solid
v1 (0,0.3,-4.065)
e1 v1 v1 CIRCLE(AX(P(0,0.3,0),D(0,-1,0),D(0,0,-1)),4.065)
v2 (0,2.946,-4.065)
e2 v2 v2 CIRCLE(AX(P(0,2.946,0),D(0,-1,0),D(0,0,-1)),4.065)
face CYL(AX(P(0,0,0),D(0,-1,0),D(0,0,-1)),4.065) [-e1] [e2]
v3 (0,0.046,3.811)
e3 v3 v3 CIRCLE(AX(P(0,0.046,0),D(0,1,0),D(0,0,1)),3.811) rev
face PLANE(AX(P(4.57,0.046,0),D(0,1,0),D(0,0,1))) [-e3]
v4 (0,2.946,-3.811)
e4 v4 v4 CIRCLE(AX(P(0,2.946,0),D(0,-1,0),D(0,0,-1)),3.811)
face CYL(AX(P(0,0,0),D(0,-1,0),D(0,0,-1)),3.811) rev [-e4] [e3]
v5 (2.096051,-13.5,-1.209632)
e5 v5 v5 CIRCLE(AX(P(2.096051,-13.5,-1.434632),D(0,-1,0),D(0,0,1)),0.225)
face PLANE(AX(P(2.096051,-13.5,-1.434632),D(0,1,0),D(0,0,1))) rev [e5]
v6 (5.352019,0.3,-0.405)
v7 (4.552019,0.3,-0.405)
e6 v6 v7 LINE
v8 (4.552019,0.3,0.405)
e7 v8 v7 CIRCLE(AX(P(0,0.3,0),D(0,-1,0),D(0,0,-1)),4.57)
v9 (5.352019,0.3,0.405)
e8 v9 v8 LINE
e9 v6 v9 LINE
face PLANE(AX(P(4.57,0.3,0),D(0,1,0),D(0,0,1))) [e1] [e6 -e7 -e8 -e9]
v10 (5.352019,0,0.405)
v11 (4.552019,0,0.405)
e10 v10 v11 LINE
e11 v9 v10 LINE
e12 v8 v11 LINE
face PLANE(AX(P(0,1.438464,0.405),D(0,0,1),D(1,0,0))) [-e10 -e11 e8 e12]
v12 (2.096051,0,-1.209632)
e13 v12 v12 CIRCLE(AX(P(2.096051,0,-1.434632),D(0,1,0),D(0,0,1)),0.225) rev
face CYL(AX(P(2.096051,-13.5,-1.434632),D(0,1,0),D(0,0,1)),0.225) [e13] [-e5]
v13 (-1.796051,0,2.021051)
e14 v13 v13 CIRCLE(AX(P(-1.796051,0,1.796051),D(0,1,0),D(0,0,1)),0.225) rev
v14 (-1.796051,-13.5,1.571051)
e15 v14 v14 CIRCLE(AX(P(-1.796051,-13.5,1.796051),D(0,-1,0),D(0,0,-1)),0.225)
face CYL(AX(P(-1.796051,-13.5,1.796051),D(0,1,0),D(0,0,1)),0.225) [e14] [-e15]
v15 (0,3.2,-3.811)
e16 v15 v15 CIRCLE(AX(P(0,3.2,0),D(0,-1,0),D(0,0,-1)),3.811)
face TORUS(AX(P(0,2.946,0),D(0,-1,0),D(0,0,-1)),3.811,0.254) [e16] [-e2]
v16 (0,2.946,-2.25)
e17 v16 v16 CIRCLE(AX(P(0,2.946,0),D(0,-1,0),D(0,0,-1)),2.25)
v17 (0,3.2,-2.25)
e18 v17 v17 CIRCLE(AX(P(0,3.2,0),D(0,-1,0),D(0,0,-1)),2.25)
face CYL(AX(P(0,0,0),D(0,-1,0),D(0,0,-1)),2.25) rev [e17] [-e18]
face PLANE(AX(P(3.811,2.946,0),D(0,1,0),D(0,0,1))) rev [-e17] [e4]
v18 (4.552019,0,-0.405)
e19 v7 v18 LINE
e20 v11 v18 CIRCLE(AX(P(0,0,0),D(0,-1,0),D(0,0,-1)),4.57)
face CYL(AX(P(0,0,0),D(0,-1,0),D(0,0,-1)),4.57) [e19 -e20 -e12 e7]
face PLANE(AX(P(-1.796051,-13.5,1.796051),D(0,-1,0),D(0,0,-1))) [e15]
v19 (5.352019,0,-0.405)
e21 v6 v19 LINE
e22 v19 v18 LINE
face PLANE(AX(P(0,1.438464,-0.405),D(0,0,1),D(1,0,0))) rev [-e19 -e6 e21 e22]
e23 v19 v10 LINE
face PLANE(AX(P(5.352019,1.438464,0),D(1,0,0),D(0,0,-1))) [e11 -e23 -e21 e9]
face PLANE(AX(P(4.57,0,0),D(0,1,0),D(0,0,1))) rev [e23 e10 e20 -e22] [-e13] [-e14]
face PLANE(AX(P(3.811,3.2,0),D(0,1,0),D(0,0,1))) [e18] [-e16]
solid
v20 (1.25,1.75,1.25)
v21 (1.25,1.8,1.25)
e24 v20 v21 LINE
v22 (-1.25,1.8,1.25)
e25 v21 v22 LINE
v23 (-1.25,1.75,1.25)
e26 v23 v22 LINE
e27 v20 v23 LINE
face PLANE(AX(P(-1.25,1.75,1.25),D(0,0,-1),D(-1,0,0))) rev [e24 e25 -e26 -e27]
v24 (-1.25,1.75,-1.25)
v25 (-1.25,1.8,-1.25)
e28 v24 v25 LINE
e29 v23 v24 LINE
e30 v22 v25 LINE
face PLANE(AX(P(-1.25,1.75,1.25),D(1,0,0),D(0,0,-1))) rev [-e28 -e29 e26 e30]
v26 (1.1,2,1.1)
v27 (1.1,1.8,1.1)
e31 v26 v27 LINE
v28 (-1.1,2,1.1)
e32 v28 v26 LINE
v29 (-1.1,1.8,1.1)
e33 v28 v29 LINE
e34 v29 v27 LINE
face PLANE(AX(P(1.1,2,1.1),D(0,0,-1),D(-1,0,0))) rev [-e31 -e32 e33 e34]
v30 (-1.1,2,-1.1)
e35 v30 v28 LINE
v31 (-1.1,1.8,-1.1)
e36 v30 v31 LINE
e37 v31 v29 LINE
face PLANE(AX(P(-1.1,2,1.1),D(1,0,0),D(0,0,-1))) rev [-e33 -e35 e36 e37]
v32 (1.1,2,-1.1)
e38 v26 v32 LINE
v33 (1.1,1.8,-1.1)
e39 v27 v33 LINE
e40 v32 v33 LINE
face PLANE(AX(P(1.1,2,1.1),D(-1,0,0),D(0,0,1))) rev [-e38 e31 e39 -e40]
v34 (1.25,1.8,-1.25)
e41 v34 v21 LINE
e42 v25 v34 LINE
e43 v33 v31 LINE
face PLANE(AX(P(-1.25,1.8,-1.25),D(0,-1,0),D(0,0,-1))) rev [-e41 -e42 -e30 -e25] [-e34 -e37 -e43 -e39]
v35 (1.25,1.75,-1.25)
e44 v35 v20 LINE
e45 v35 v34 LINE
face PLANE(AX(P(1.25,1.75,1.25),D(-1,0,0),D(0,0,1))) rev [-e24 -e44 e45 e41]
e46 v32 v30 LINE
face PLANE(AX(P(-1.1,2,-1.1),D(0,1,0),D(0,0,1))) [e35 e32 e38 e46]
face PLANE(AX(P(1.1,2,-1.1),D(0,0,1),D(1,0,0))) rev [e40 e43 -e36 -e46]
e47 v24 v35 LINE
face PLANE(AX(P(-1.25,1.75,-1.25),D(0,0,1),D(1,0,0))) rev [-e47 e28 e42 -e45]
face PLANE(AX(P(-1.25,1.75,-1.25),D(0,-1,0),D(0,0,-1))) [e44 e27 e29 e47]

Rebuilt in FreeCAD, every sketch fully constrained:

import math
import FreeCAD as App
import Part
import Sketcher
from FreeCAD import Vector

doc = App.newDocument("Part")
body = doc.addObject("PartDesign::Body", "Body")

# Sketch on XY plane
sketch1 = body.newObject("Sketcher::SketchObject", "Sketch")
sketch1.AttachmentSupport = (doc.getObject("XY_Plane"), [""])
sketch1.MapMode = "FlatFace"
sketch1.addGeometry(Part.LineSegment(Vector(4.57, 0, 0), Vector(4.57, 0.3, 0)), False)
sketch1.addGeometry(Part.LineSegment(Vector(4.57, 0.3, 0), Vector(4.065, 0.3, 0)), False)
sketch1.addGeometry(Part.LineSegment(Vector(4.065, 0.3, 0), Vector(4.065, 2.946, 0)), False)
sketch1.addGeometry(Part.ArcOfCircle(Part.Circle(Vector(3.811, 2.946, 0), Vector(0, 0, 1), 0.254), math.radians(0), math.radians(90)), False)
sketch1.addGeometry(Part.LineSegment(Vector(3.811, 3.2, 0), Vector(2.25, 3.2, 0)), False)
sketch1.addGeometry(Part.LineSegment(Vector(2.25, 3.2, 0), Vector(2.25, 2.946, 0)), False)
sketch1.addGeometry(Part.LineSegment(Vector(2.25, 2.946, 0), Vector(3.811, 2.946, 0)), False)
sketch1.addGeometry(Part.LineSegment(Vector(3.811, 2.946, 0), Vector(3.811, 0.046, 0)), False)
sketch1.addGeometry(Part.LineSegment(Vector(3.811, 0.046, 0), Vector(4.316, 0.046, 0)), False)
sketch1.addGeometry(Part.LineSegment(Vector(4.316, 0.046, 0), Vector(4.316, 0, 0)), False)
sketch1.addGeometry(Part.LineSegment(Vector(4.316, 0, 0), Vector(4.57, 0, 0)), False)
sketch1.addConstraint(Sketcher.Constraint("Coincident", 0, 2, 1, 1))
sketch1.addConstraint(Sketcher.Constraint("Coincident", 1, 2, 2, 1))
sketch1.addConstraint(Sketcher.Constraint("Tangent", 2, 2, 3, 1))
sketch1.addConstraint(Sketcher.Constraint("Tangent", 3, 2, 4, 1))
sketch1.addConstraint(Sketcher.Constraint("Coincident", 4, 2, 5, 1))
sketch1.addConstraint(Sketcher.Constraint("Coincident", 5, 2, 6, 1))
sketch1.addConstraint(Sketcher.Constraint("Coincident", 6, 2, 7, 1))
sketch1.addConstraint(Sketcher.Constraint("Coincident", 7, 2, 8, 1))
sketch1.addConstraint(Sketcher.Constraint("Coincident", 8, 2, 9, 1))
sketch1.addConstraint(Sketcher.Constraint("Coincident", 9, 2, 10, 1))
sketch1.addConstraint(Sketcher.Constraint("Coincident", 10, 2, 0, 1))
sketch1.addConstraint(Sketcher.Constraint("Vertical", 0))
sketch1.addConstraint(Sketcher.Constraint("Horizontal", 1))
sketch1.addConstraint(Sketcher.Constraint("Vertical", 2))
sketch1.addConstraint(Sketcher.Constraint("Horizontal", 4))
sketch1.addConstraint(Sketcher.Constraint("Vertical", 5))
sketch1.addConstraint(Sketcher.Constraint("Horizontal", 6))
sketch1.addConstraint(Sketcher.Constraint("Vertical", 7))
sketch1.addConstraint(Sketcher.Constraint("Horizontal", 8))
sketch1.addConstraint(Sketcher.Constraint("Vertical", 9))
sketch1.addConstraint(Sketcher.Constraint("Horizontal", 10))
sketch1.addConstraint(Sketcher.Constraint("Coincident", 6, 2, 3, 3))
sketch1.addConstraint(Sketcher.Constraint("PointOnObject", 9, 2, -1))
sketch1.addConstraint(Sketcher.Constraint("Equal", 1, 8))
sketch1.addConstraint(Sketcher.Constraint("DistanceY", 0, 1, 0, 2, 0.3))
sketch1.addConstraint(Sketcher.Constraint("DistanceY", 7, 2, 7, 1, 2.9))
sketch1.addConstraint(Sketcher.Constraint("Radius", 3, 0.254))
sketch1.addConstraint(Sketcher.Constraint("DistanceY", -1, 1, 3, 2, 3.2))
sketch1.addConstraint(Sketcher.Constraint("DistanceX", 1, 2, 1, 1, 0.505))
sketch1.addConstraint(Sketcher.Constraint("DistanceX", 4, 2, 4, 1, 1.561))
sketch1.addConstraint(Sketcher.Constraint("DistanceX", -1, 1, 0, 2, 4.57))
revolution = body.newObject("PartDesign::Revolution", "Revolution")
revolution.Profile = sketch1
revolution.ReferenceAxis = (sketch1, ["V_Axis"])
revolution.Angle = 360

# Sketch on XZ plane
sketch2 = body.newObject("Sketcher::SketchObject", "Sketch001")
sketch2.AttachmentSupport = (doc.getObject("XZ_Plane"), [""])
sketch2.MapMode = "FlatFace"
sketch2.addGeometry(Part.Circle(Vector(0, 0, 0), Vector(0, 0, 1), 4.57), False)
sketch2.addConstraint(Sketcher.Constraint("Coincident", 0, 3, -1, 1))
sketch2.addConstraint(Sketcher.Constraint("Diameter", 0, 9.14))
pad1 = body.newObject("PartDesign::Pad", "Pad")
pad1.Profile = sketch2
pad1.Length = 0.046
pad1.Reversed = True

# Sketch on XZ plane
sketch3 = body.newObject("Sketcher::SketchObject", "Sketch002")
sketch3.AttachmentSupport = (doc.getObject("XZ_Plane"), [""])
sketch3.MapMode = "FlatFace"
sketch3.addGeometry(Part.LineSegment(Vector(5.352019, -0.405, 0), Vector(5.352019, 0.405, 0)), False)
sketch3.addGeometry(Part.LineSegment(Vector(5.352019, 0.405, 0), Vector(4.552019, 0.405, 0)), False)
sketch3.addGeometry(Part.ArcOfCircle(Part.Circle(Vector(0, 0, 0), Vector(0, 0, 1), 4.57), math.radians(0), math.radians(5.084305)), False)
sketch3.addGeometry(Part.ArcOfCircle(Part.Circle(Vector(0, 0, 0), Vector(0, 0, 1), 4.57), math.radians(-5.084305), math.radians(0)), False)
sketch3.addGeometry(Part.LineSegment(Vector(4.552019, -0.405, 0), Vector(5.352019, -0.405, 0)), False)
sketch3.addConstraint(Sketcher.Constraint("Coincident", 0, 2, 1, 1))
sketch3.addConstraint(Sketcher.Constraint("Coincident", 1, 2, 2, 2))
sketch3.addConstraint(Sketcher.Constraint("Tangent", 2, 1, 3, 2))
sketch3.addConstraint(Sketcher.Constraint("Coincident", 3, 1, 4, 1))
sketch3.addConstraint(Sketcher.Constraint("Coincident", 4, 2, 0, 1))
sketch3.addConstraint(Sketcher.Constraint("Vertical", 0))
sketch3.addConstraint(Sketcher.Constraint("Horizontal", 1))
sketch3.addConstraint(Sketcher.Constraint("Horizontal", 4))
sketch3.addConstraint(Sketcher.Constraint("Coincident", 2, 3, -1, 1))
sketch3.addConstraint(Sketcher.Constraint("Equal", 2, 3))
sketch3.addConstraint(Sketcher.Constraint("PointOnObject", 2, 1, -1))
sketch3.addConstraint(Sketcher.Constraint("Vertical", 1, 2, 3, 1))
sketch3.addConstraint(Sketcher.Constraint("Radius", 2, 4.57))
sketch3.addConstraint(Sketcher.Constraint("DistanceX", 1, 2, 1, 1, 0.8))
sketch3.addConstraint(Sketcher.Constraint("DistanceY", 0, 1, 0, 2, 0.81))
pad2 = body.newObject("PartDesign::Pad", "Pad001")
pad2.Profile = sketch3
pad2.Length = 0.3
pad2.Reversed = True

# Sketch on XZ plane
sketch4 = body.newObject("Sketcher::SketchObject", "Sketch003")
sketch4.AttachmentSupport = (doc.getObject("XZ_Plane"), [""])
sketch4.MapMode = "FlatFace"
sketch4.addGeometry(Part.Circle(Vector(2.096051, -1.434632, 0), Vector(0, 0, 1), 0.225), False)
sketch4.addGeometry(Part.Circle(Vector(-1.796051, 1.796051, 0), Vector(0, 0, 1), 0.225), False)
sketch4.addConstraint(Sketcher.Constraint("Equal", 0, 1))
sketch4.addConstraint(Sketcher.Constraint("Diameter", 0, 0.45))
sketch4.addConstraint(Sketcher.Constraint("DistanceX", -1, 1, 0, 3, 2.096051))
sketch4.addConstraint(Sketcher.Constraint("DistanceX", 1, 3, -1, 1, 1.796051))
sketch4.addConstraint(Sketcher.Constraint("DistanceY", -1, 1, 1, 3, 1.796051))
sketch4.addConstraint(Sketcher.Constraint("DistanceY", 0, 3, -1, 1, 1.434632))
pad3 = body.newObject("PartDesign::Pad", "Pad002")
pad3.Profile = sketch4
pad3.Length = 13.5
body2 = doc.addObject("PartDesign::Body", "Body001")

# Sketch on XZ plane
sketch5 = body2.newObject("Sketcher::SketchObject", "Sketch004")
sketch5.AttachmentSupport = (doc.getObject("XZ_Plane001"), [""])
sketch5.MapMode = "FlatFace"
sketch5.AttachmentOffset = App.Placement(Vector(0, 0, -1.8), App.Rotation())
sketch5.addGeometry(Part.LineSegment(Vector(-1.25, 1.25, 0), Vector(-1.25, -1.25, 0)), False)
sketch5.addGeometry(Part.LineSegment(Vector(-1.25, -1.25, 0), Vector(1.25, -1.25, 0)), False)
sketch5.addGeometry(Part.LineSegment(Vector(1.25, -1.25, 0), Vector(1.25, 1.25, 0)), False)
sketch5.addGeometry(Part.LineSegment(Vector(1.25, 1.25, 0), Vector(-1.25, 1.25, 0)), False)
sketch5.addConstraint(Sketcher.Constraint("Coincident", 0, 2, 1, 1))
sketch5.addConstraint(Sketcher.Constraint("Coincident", 1, 2, 2, 1))
sketch5.addConstraint(Sketcher.Constraint("Coincident", 2, 2, 3, 1))
sketch5.addConstraint(Sketcher.Constraint("Coincident", 3, 2, 0, 1))
sketch5.addConstraint(Sketcher.Constraint("Vertical", 0))
sketch5.addConstraint(Sketcher.Constraint("Horizontal", 1))
sketch5.addConstraint(Sketcher.Constraint("Vertical", 2))
sketch5.addConstraint(Sketcher.Constraint("Horizontal", 3))
sketch5.addConstraint(Sketcher.Constraint("Symmetric", 0, 2, 2, 2, -1, 1))
sketch5.addConstraint(Sketcher.Constraint("Equal", 3, 0))
sketch5.addConstraint(Sketcher.Constraint("DistanceX", 1, 1, 1, 2, 2.5))
pad4 = body2.newObject("PartDesign::Pad", "Pad003")
pad4.Profile = sketch5
pad4.Length = 0.05

# Sketch on XZ plane
sketch6 = body2.newObject("Sketcher::SketchObject", "Sketch005")
sketch6.AttachmentSupport = (doc.getObject("XZ_Plane001"), [""])
sketch6.MapMode = "FlatFace"
sketch6.AttachmentOffset = App.Placement(Vector(0, 0, -1.8), App.Rotation())
sketch6.addGeometry(Part.LineSegment(Vector(1.1, 1.1, 0), Vector(1.1, -1.1, 0)), False)
sketch6.addGeometry(Part.LineSegment(Vector(1.1, -1.1, 0), Vector(-1.1, -1.1, 0)), False)
sketch6.addGeometry(Part.LineSegment(Vector(-1.1, -1.1, 0), Vector(-1.1, 1.1, 0)), False)
sketch6.addGeometry(Part.LineSegment(Vector(-1.1, 1.1, 0), Vector(1.1, 1.1, 0)), False)
sketch6.addConstraint(Sketcher.Constraint("Coincident", 0, 2, 1, 1))
sketch6.addConstraint(Sketcher.Constraint("Coincident", 1, 2, 2, 1))
sketch6.addConstraint(Sketcher.Constraint("Coincident", 2, 2, 3, 1))
sketch6.addConstraint(Sketcher.Constraint("Coincident", 3, 2, 0, 1))
sketch6.addConstraint(Sketcher.Constraint("Vertical", 0))
sketch6.addConstraint(Sketcher.Constraint("Horizontal", 1))
sketch6.addConstraint(Sketcher.Constraint("Vertical", 2))
sketch6.addConstraint(Sketcher.Constraint("Horizontal", 3))
sketch6.addConstraint(Sketcher.Constraint("Symmetric", 0, 2, 2, 2, -1, 1))
sketch6.addConstraint(Sketcher.Constraint("Equal", 3, 0))
sketch6.addConstraint(Sketcher.Constraint("DistanceX", 1, 2, 1, 1, 2.2))
pad5 = body2.newObject("PartDesign::Pad", "Pad004")
pad5.Profile = sketch6
pad5.Length = 0.2
pad5.Reversed = True

doc.recompute()
